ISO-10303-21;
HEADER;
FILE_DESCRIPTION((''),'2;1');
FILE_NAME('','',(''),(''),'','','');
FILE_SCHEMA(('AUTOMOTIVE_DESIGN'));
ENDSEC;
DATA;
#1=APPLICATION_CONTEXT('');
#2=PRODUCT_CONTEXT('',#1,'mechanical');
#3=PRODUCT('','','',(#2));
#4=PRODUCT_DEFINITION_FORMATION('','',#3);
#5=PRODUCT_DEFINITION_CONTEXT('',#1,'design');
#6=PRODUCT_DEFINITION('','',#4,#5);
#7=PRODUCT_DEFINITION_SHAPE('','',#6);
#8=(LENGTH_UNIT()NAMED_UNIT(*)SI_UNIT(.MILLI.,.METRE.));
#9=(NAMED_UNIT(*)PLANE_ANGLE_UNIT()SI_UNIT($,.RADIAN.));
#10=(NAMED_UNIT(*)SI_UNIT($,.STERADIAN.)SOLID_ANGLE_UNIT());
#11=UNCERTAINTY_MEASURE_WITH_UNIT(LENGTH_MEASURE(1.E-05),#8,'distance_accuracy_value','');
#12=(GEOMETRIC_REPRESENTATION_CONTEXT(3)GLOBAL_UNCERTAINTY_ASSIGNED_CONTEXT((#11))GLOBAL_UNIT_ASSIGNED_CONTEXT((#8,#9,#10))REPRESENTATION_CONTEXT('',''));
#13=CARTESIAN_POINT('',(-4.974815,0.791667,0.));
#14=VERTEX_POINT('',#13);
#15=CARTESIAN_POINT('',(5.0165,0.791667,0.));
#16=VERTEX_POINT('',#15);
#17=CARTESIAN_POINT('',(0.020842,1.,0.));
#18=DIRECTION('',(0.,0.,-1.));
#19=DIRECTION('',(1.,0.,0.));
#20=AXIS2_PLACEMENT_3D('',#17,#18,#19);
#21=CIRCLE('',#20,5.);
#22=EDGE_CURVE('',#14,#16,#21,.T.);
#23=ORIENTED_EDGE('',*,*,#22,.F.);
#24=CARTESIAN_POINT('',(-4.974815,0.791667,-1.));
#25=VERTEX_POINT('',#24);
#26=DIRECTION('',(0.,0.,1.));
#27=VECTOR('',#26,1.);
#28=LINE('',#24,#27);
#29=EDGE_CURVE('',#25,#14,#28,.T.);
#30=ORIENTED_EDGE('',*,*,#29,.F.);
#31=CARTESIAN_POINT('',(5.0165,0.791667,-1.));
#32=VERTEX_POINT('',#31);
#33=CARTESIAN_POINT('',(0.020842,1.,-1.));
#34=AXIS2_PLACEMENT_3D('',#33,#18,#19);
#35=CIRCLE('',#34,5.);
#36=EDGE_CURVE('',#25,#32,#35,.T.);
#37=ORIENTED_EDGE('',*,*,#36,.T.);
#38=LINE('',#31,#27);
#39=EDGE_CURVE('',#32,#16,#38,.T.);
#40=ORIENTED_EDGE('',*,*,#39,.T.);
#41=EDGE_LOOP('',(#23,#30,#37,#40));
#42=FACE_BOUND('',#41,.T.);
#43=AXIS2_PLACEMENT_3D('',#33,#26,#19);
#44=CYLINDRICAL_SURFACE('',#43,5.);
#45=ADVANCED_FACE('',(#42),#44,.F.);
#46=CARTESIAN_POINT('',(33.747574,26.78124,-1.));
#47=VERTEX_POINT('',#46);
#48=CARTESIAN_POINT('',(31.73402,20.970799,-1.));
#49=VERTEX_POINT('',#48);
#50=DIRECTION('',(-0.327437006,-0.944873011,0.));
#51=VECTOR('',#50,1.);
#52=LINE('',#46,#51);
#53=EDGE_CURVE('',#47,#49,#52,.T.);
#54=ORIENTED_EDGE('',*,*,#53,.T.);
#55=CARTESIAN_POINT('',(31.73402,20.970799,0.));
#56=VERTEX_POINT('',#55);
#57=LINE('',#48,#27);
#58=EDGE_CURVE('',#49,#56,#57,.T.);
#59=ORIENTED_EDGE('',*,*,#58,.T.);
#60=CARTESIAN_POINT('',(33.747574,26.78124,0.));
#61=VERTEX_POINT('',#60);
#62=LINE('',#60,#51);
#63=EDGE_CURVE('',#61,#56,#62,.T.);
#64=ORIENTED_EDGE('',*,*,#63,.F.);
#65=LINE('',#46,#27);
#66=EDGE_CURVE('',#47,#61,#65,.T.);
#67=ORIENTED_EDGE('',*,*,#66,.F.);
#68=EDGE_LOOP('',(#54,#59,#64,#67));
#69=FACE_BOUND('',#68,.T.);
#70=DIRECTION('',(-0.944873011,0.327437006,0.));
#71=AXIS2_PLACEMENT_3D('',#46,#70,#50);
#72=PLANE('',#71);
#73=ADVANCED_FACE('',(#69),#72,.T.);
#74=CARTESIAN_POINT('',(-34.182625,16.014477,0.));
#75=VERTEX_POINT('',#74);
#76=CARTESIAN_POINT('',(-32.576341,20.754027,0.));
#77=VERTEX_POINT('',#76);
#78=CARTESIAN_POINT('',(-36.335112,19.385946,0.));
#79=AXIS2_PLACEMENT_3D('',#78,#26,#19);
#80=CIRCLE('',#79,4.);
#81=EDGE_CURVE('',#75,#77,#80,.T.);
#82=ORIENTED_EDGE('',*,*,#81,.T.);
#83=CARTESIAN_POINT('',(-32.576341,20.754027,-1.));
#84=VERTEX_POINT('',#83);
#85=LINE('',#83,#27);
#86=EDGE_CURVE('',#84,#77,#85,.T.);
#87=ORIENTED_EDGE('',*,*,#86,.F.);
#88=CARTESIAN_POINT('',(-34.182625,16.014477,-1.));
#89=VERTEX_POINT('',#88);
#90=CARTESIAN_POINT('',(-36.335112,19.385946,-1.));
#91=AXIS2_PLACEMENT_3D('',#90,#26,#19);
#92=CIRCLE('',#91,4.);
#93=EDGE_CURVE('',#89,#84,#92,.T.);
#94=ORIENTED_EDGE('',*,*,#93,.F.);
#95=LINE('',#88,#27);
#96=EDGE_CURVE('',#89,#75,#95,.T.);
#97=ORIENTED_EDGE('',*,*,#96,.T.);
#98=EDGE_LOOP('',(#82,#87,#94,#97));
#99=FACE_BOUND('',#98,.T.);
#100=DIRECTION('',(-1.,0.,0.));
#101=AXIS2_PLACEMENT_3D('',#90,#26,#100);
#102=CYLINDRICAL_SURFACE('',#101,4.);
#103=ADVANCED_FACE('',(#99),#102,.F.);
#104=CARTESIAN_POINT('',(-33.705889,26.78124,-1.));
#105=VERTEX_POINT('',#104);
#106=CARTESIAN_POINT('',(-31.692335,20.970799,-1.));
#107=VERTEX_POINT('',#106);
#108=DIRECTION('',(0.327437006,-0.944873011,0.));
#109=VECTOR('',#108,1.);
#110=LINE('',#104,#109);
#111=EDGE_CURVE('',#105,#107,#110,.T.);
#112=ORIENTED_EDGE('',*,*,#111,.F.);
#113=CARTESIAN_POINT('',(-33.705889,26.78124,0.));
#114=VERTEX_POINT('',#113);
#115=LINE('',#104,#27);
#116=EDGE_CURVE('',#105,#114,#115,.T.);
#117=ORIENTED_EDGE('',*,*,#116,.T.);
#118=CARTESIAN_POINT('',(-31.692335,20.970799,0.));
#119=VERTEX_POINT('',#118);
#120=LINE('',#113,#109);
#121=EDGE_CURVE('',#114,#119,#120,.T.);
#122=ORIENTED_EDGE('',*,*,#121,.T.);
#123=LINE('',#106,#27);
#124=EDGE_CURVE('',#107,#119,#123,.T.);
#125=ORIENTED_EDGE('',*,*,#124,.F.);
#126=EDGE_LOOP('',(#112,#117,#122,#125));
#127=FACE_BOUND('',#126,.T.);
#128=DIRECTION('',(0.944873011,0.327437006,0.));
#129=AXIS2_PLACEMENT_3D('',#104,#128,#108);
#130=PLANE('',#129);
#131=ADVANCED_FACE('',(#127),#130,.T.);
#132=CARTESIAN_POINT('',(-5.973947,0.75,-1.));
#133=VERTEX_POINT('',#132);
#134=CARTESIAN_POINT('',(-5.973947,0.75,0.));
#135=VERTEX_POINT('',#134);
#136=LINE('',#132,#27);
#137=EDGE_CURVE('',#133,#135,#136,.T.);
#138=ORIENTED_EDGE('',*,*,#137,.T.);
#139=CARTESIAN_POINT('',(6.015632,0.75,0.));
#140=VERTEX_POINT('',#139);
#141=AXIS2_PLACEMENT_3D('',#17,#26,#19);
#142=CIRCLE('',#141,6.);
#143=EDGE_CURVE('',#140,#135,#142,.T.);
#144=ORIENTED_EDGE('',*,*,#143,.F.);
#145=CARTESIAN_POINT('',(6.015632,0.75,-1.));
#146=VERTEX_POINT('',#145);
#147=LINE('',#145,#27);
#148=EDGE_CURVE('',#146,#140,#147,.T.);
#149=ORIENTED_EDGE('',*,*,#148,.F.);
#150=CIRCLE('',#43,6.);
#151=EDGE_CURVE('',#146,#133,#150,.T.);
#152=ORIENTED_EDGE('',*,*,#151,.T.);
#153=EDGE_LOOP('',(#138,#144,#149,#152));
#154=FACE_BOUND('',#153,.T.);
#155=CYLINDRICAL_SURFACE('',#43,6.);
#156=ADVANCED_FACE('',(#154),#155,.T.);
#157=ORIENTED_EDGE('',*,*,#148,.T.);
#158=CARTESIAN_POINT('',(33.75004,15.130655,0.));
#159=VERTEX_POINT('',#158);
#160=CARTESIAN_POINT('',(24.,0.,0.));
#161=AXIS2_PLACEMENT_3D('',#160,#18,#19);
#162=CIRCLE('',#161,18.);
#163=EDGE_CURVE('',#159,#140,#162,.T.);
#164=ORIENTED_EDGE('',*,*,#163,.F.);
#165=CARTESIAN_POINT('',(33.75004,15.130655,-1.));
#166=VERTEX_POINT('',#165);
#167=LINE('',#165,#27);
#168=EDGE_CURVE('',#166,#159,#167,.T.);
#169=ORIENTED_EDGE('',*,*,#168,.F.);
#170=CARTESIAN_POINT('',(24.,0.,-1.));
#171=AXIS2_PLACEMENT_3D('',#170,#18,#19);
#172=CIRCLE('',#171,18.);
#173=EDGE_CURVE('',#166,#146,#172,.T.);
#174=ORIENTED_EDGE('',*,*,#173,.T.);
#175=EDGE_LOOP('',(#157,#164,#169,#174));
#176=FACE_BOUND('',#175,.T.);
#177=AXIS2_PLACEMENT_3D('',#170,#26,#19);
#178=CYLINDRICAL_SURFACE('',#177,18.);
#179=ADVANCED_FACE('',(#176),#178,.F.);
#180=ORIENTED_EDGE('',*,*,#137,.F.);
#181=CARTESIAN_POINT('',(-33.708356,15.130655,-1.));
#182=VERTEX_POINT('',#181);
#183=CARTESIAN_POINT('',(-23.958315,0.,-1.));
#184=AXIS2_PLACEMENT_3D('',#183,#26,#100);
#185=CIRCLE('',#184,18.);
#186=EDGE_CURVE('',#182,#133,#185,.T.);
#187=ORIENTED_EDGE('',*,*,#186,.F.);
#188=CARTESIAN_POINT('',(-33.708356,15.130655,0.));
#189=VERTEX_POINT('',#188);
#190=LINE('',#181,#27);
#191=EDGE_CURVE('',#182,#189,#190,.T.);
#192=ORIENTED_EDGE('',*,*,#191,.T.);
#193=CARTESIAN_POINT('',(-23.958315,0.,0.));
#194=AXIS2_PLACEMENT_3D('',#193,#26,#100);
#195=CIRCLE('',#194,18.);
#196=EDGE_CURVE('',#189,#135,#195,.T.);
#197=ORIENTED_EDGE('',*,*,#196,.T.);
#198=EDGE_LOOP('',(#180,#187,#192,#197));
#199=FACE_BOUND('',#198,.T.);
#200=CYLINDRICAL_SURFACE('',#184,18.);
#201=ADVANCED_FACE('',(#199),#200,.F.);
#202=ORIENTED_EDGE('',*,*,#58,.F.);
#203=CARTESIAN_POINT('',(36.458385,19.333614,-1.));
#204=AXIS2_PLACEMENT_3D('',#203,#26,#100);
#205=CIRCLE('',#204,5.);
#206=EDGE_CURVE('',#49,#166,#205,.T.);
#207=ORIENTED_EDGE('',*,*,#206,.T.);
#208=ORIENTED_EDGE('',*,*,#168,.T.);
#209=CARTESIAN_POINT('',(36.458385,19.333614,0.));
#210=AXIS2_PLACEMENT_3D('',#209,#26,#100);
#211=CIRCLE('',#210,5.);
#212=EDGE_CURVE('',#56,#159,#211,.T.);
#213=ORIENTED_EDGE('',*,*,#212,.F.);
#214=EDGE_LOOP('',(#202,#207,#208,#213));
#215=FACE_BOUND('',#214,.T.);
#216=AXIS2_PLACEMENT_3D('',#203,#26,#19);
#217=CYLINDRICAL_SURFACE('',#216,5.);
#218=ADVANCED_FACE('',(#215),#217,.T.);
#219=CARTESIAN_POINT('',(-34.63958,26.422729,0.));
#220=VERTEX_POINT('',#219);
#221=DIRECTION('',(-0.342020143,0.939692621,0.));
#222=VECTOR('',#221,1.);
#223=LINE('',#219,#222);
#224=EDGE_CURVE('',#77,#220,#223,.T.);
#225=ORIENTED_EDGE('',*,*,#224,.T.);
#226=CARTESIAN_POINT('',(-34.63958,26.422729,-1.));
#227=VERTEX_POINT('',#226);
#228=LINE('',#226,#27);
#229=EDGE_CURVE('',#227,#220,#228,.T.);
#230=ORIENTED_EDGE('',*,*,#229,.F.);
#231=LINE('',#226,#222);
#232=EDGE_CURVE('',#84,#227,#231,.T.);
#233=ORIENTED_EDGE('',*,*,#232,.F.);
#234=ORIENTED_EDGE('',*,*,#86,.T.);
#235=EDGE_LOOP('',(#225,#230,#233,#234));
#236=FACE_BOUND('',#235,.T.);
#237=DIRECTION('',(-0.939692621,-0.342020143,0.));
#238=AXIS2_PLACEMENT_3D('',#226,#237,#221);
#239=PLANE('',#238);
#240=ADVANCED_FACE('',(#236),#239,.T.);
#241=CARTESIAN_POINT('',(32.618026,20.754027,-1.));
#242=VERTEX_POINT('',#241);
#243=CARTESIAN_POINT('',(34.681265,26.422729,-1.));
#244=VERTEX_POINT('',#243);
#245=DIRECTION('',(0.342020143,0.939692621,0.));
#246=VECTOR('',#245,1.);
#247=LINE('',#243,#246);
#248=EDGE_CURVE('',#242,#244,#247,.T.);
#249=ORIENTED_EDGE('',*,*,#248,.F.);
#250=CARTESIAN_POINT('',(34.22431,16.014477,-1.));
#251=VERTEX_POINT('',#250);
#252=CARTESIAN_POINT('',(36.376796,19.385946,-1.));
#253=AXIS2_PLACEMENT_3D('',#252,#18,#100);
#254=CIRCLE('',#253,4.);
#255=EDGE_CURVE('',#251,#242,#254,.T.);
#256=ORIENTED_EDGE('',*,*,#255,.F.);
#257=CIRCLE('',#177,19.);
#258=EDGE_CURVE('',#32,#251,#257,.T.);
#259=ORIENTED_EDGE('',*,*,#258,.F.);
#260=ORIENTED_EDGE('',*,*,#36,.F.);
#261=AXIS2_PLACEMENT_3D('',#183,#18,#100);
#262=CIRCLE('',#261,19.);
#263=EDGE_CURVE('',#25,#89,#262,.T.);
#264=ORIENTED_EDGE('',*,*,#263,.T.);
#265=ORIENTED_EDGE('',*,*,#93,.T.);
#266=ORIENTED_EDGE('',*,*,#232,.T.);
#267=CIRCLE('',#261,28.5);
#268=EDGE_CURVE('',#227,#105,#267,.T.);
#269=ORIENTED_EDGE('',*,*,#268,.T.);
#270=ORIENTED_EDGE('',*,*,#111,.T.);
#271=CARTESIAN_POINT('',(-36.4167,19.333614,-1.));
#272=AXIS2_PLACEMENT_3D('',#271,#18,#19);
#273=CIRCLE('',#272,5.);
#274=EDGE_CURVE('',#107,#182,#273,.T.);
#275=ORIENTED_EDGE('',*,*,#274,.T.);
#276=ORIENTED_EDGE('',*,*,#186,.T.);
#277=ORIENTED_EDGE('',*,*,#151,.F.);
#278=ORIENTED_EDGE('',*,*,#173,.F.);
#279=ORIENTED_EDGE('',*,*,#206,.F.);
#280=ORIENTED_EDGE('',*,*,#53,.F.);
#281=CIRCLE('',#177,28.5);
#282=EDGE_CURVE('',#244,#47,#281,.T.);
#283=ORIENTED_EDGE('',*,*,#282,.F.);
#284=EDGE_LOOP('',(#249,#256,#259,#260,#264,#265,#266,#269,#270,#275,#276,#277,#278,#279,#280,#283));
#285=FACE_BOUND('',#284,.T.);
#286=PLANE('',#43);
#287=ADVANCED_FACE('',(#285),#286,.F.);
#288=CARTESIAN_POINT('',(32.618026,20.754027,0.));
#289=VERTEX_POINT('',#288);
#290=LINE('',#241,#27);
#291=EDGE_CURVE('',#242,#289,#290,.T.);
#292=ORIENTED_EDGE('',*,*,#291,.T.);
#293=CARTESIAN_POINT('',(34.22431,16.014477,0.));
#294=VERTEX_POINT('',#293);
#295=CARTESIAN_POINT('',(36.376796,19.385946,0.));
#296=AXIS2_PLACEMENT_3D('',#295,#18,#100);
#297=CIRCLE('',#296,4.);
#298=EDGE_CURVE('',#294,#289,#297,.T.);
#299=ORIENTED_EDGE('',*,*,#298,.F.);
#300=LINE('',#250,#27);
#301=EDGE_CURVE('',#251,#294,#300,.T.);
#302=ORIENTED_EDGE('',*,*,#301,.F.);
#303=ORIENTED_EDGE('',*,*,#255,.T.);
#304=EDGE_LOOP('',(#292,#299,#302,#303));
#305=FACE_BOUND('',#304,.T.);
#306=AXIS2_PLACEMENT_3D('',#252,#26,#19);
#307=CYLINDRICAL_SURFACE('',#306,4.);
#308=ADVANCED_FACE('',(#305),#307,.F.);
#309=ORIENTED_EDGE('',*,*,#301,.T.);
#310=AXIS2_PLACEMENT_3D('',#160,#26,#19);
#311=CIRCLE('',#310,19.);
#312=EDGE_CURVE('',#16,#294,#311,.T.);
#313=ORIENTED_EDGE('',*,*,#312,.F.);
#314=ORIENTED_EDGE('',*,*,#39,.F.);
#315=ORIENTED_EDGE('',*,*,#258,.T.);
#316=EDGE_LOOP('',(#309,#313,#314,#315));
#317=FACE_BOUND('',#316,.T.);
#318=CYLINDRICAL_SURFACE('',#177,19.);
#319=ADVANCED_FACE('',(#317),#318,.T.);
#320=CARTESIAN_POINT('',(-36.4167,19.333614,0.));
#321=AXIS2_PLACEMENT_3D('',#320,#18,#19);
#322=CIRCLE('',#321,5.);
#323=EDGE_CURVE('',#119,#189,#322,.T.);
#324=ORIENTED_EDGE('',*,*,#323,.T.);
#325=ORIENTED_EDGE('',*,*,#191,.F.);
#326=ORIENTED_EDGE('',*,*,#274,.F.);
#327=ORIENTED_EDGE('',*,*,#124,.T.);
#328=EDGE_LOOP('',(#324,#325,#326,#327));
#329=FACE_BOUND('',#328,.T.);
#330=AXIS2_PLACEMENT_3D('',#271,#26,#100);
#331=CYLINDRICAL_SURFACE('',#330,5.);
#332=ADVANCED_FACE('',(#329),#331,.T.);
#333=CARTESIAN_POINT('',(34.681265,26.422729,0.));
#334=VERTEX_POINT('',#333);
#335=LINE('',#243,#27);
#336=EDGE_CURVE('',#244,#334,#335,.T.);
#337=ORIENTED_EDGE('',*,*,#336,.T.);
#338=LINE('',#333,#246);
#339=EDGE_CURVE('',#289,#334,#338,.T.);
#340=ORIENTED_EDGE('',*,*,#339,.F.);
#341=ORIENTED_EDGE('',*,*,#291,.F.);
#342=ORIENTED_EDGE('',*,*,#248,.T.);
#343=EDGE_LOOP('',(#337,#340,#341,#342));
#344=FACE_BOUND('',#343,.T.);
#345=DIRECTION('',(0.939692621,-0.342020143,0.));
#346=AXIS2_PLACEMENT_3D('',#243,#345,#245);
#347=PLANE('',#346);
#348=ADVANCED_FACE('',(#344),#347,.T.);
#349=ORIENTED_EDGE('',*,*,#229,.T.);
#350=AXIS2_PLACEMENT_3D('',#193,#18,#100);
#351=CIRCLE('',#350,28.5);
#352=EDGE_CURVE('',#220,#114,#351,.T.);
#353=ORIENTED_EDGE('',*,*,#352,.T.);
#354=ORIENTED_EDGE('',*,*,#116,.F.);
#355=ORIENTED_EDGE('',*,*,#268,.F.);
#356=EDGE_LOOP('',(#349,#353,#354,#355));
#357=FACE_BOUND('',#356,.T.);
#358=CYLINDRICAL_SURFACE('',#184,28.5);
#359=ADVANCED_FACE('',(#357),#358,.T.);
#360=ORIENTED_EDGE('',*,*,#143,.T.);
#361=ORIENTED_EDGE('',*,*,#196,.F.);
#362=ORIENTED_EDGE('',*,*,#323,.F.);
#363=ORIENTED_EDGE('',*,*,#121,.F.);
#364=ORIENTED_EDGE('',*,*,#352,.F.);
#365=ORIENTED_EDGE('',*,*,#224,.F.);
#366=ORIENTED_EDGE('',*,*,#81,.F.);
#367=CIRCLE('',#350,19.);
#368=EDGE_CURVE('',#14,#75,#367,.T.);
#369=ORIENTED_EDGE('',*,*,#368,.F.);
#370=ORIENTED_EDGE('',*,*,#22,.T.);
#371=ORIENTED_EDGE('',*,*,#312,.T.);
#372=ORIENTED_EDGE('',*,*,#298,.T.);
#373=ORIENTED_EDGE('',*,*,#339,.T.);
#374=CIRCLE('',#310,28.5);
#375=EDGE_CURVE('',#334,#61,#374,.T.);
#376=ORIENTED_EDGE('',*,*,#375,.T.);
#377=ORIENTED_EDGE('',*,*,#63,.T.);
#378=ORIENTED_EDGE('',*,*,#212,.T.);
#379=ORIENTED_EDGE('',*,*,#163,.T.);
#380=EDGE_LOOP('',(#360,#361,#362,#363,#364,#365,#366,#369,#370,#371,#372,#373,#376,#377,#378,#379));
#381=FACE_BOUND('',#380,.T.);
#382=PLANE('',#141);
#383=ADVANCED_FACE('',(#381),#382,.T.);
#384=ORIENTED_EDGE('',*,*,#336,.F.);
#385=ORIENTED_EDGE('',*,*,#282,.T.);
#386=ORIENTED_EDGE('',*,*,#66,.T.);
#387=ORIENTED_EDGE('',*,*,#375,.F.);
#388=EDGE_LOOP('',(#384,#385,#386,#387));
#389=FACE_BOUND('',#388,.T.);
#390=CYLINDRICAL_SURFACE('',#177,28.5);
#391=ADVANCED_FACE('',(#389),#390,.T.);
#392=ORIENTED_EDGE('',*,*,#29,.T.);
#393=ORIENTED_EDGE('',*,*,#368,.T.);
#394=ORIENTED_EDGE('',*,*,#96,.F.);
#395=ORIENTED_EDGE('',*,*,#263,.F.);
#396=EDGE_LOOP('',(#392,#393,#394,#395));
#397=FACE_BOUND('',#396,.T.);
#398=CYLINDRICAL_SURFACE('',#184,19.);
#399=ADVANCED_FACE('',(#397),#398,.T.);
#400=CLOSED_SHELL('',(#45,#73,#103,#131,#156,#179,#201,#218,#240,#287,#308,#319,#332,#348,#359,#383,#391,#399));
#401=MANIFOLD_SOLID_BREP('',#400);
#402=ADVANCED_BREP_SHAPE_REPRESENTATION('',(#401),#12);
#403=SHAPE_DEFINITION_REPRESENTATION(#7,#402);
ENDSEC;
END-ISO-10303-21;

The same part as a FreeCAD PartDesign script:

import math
import FreeCAD as App
import Part
import Sketcher

V = App.Vector
Q = App.Units.Quantity

doc = App.newDocument("Part")
params = doc.addObject("Spreadsheet::Sheet", "Params")
for row, (alias, value) in enumerate([
    ("sketch1_radius", "5 mm"),
    ("sketch1_radius2", "18 mm"),
    ("sketch1_radius3", "6 mm"),
    ("sketch1_radius4", "4 mm"),
    ("pad1_length", "1 mm"),
], start=1):
    params.set(f"A{row}", alias)
    params.set(f"B{row}", "=" + value)
    params.setAlias(f"B{row}", alias)

body = doc.addObject("PartDesign::Body", "Body")

# Sketch on XY plane
sketch1 = body.newObject("Sketcher::SketchObject", "Sketch")
sketch1.AttachmentSupport = (doc.getObject("XY_Plane"), [""])
sketch1.MapMode = "FlatFace"
sketch1.addGeometry(Part.LineSegment(V(32.6, 20.8, 0), V(34.7, 26.4, 0)), False)
sketch1.addGeometry(Part.ArcOfCircle(Part.Circle(V(24, 0, 0), V(0, 0, 1), 28.5), math.radians(67.99), math.radians(70)), False)
sketch1.addGeometry(Part.LineSegment(V(33.7, 26.8, 0), V(31.7, 21, 0)), False)
sketch1.addGeometry(Part.ArcOfCircle(Part.Circle(V(36.5, 19.3, 0), V(0, 0, 1), 5), math.radians(161), math.radians(237)), False)
sketch1.addGeometry(Part.ArcOfCircle(Part.Circle(V(24, 0, 0), V(0, 0, 1), 18), math.radians(178), math.radians(417)), False)
sketch1.addGeometry(Part.ArcOfCircle(Part.Circle(V(0, 1, 0), V(0, 0, 1), 6), math.radians(-2), math.radians(90)), False)
sketch1.addGeometry(Part.LineSegment(V(0, 7, 0), V(0, 6, 0)), False)
sketch1.addGeometry(Part.ArcOfCircle(Part.Circle(V(0, 1, 0), V(0, 0, 1), 5), math.radians(-2), math.radians(90)), False)
sketch1.addGeometry(Part.ArcOfCircle(Part.Circle(V(24, 0, 0), V(0, 0, 1), 19), math.radians(178), math.radians(417)), False)
sketch1.addGeometry(Part.ArcOfCircle(Part.Circle(V(36.4, 19.4, 0), V(0, 0, 1), 4), math.radians(160), math.radians(237)), False)
sketch1.addConstraint(Sketcher.Constraint("Coincident", 0, 2, 1, 1))
sketch1.addConstraint(Sketcher.Constraint("Coincident", 1, 2, 2, 1))
sketch1.addConstraint(Sketcher.Constraint("Tangent", 2, 2, 3, 1))
sketch1.addConstraint(Sketcher.Constraint("Tangent", 3, 2, 4, 2))
sketch1.addConstraint(Sketcher.Constraint("Tangent", 4, 1, 5, 1))
sketch1.addConstraint(Sketcher.Constraint("Coincident", 5, 2, 6, 1))
sketch1.addConstraint(Sketcher.Constraint("Coincident", 6, 2, 7, 2))
sketch1.addConstraint(Sketcher.Constraint("Tangent", 7, 1, 8, 1))
sketch1.addConstraint(Sketcher.Constraint("Tangent", 8, 2, 9, 2))
sketch1.addConstraint(Sketcher.Constraint("Tangent", 9, 1, 0, 1))
sketch1.addConstraint(Sketcher.Constraint("Vertical", 6))
sketch1.addConstraint(Sketcher.Constraint("Coincident", 4, 3, 1, 3))
sketch1.addConstraint(Sketcher.Constraint("Coincident", 7, 3, 5, 3))
sketch1.addConstraint(Sketcher.Constraint("Coincident", 8, 3, 1, 3))
sketch1.addConstraint(Sketcher.Constraint("Equal", 3, 7))
sketch1.addConstraint(Sketcher.Constraint("PointOnObject", 4, 3, -1))
sketch1.addConstraint(Sketcher.Constraint("Vertical", 7, 3, 5, 2))
sketch1.addConstraint(Sketcher.Constraint("Radius", 3, Q("5 mm")))
sketch1.addConstraint(Sketcher.Constraint("Radius", 4, Q("18 mm")))
sketch1.addConstraint(Sketcher.Constraint("Radius", 5, Q("6 mm")))
sketch1.addConstraint(Sketcher.Constraint("Radius", 9, Q("4 mm")))
sketch1.addConstraint(Sketcher.Constraint("Angle", 0, Q("70 deg")))
sketch1.addConstraint(Sketcher.Constraint("DistanceX", -1, 1, 1, 3, Q("24.000002 mm")))
sketch1.addConstraint(Sketcher.Constraint("DistanceY", -1, 1, 5, 3, Q("1 mm")))
sketch1.addConstraint(Sketcher.Constraint("Radius", 1, Q("28.499995 mm")))
sketch1.addConstraint(Sketcher.Constraint("DistanceY", -1, 1, 2, 2, Q("20.970799 mm")))
sketch1.addConstraint(Sketcher.Constraint("Distance", 2, Q("6.14944 mm")))
sketch1.addConstraint(Sketcher.Constraint("DistanceY", -1, 1, 0, 2, Q("26.422729 mm")))
sketch1.setExpression("Constraints[17]", "Params.sketch1_radius")
sketch1.setExpression("Constraints[18]", "Params.sketch1_radius2")
sketch1.setExpression("Constraints[19]", "Params.sketch1_radius3")
sketch1.setExpression("Constraints[20]", "Params.sketch1_radius4")
pad1 = body.newObject("PartDesign::Pad", "Pad")
pad1.Profile = sketch1
pad1.setExpression("Length", "Params.pad1_length")
pad1.Reversed = True
body2 = doc.addObject("PartDesign::Body", "Body001")
doc.recompute()

body2.BaseFeature = body
doc.recompute()

mirroring = doc.addObject("Part::Mirroring", "Mirroring")
mirroring.Source = body
mirroring.Base = V(0.020842, 7, -1)
mirroring.Normal = V(-1, 0, 0)
body3 = doc.addObject("PartDesign::Body", "Body002")
body3.BaseFeature = mirroring
boolean = body2.newObject("PartDesign::Boolean", "Boolean")
boolean.Type = "Fuse"
boolean.addObjects([body3])
doc.recompute()
mirroring.Visibility = False

doc.recompute()
